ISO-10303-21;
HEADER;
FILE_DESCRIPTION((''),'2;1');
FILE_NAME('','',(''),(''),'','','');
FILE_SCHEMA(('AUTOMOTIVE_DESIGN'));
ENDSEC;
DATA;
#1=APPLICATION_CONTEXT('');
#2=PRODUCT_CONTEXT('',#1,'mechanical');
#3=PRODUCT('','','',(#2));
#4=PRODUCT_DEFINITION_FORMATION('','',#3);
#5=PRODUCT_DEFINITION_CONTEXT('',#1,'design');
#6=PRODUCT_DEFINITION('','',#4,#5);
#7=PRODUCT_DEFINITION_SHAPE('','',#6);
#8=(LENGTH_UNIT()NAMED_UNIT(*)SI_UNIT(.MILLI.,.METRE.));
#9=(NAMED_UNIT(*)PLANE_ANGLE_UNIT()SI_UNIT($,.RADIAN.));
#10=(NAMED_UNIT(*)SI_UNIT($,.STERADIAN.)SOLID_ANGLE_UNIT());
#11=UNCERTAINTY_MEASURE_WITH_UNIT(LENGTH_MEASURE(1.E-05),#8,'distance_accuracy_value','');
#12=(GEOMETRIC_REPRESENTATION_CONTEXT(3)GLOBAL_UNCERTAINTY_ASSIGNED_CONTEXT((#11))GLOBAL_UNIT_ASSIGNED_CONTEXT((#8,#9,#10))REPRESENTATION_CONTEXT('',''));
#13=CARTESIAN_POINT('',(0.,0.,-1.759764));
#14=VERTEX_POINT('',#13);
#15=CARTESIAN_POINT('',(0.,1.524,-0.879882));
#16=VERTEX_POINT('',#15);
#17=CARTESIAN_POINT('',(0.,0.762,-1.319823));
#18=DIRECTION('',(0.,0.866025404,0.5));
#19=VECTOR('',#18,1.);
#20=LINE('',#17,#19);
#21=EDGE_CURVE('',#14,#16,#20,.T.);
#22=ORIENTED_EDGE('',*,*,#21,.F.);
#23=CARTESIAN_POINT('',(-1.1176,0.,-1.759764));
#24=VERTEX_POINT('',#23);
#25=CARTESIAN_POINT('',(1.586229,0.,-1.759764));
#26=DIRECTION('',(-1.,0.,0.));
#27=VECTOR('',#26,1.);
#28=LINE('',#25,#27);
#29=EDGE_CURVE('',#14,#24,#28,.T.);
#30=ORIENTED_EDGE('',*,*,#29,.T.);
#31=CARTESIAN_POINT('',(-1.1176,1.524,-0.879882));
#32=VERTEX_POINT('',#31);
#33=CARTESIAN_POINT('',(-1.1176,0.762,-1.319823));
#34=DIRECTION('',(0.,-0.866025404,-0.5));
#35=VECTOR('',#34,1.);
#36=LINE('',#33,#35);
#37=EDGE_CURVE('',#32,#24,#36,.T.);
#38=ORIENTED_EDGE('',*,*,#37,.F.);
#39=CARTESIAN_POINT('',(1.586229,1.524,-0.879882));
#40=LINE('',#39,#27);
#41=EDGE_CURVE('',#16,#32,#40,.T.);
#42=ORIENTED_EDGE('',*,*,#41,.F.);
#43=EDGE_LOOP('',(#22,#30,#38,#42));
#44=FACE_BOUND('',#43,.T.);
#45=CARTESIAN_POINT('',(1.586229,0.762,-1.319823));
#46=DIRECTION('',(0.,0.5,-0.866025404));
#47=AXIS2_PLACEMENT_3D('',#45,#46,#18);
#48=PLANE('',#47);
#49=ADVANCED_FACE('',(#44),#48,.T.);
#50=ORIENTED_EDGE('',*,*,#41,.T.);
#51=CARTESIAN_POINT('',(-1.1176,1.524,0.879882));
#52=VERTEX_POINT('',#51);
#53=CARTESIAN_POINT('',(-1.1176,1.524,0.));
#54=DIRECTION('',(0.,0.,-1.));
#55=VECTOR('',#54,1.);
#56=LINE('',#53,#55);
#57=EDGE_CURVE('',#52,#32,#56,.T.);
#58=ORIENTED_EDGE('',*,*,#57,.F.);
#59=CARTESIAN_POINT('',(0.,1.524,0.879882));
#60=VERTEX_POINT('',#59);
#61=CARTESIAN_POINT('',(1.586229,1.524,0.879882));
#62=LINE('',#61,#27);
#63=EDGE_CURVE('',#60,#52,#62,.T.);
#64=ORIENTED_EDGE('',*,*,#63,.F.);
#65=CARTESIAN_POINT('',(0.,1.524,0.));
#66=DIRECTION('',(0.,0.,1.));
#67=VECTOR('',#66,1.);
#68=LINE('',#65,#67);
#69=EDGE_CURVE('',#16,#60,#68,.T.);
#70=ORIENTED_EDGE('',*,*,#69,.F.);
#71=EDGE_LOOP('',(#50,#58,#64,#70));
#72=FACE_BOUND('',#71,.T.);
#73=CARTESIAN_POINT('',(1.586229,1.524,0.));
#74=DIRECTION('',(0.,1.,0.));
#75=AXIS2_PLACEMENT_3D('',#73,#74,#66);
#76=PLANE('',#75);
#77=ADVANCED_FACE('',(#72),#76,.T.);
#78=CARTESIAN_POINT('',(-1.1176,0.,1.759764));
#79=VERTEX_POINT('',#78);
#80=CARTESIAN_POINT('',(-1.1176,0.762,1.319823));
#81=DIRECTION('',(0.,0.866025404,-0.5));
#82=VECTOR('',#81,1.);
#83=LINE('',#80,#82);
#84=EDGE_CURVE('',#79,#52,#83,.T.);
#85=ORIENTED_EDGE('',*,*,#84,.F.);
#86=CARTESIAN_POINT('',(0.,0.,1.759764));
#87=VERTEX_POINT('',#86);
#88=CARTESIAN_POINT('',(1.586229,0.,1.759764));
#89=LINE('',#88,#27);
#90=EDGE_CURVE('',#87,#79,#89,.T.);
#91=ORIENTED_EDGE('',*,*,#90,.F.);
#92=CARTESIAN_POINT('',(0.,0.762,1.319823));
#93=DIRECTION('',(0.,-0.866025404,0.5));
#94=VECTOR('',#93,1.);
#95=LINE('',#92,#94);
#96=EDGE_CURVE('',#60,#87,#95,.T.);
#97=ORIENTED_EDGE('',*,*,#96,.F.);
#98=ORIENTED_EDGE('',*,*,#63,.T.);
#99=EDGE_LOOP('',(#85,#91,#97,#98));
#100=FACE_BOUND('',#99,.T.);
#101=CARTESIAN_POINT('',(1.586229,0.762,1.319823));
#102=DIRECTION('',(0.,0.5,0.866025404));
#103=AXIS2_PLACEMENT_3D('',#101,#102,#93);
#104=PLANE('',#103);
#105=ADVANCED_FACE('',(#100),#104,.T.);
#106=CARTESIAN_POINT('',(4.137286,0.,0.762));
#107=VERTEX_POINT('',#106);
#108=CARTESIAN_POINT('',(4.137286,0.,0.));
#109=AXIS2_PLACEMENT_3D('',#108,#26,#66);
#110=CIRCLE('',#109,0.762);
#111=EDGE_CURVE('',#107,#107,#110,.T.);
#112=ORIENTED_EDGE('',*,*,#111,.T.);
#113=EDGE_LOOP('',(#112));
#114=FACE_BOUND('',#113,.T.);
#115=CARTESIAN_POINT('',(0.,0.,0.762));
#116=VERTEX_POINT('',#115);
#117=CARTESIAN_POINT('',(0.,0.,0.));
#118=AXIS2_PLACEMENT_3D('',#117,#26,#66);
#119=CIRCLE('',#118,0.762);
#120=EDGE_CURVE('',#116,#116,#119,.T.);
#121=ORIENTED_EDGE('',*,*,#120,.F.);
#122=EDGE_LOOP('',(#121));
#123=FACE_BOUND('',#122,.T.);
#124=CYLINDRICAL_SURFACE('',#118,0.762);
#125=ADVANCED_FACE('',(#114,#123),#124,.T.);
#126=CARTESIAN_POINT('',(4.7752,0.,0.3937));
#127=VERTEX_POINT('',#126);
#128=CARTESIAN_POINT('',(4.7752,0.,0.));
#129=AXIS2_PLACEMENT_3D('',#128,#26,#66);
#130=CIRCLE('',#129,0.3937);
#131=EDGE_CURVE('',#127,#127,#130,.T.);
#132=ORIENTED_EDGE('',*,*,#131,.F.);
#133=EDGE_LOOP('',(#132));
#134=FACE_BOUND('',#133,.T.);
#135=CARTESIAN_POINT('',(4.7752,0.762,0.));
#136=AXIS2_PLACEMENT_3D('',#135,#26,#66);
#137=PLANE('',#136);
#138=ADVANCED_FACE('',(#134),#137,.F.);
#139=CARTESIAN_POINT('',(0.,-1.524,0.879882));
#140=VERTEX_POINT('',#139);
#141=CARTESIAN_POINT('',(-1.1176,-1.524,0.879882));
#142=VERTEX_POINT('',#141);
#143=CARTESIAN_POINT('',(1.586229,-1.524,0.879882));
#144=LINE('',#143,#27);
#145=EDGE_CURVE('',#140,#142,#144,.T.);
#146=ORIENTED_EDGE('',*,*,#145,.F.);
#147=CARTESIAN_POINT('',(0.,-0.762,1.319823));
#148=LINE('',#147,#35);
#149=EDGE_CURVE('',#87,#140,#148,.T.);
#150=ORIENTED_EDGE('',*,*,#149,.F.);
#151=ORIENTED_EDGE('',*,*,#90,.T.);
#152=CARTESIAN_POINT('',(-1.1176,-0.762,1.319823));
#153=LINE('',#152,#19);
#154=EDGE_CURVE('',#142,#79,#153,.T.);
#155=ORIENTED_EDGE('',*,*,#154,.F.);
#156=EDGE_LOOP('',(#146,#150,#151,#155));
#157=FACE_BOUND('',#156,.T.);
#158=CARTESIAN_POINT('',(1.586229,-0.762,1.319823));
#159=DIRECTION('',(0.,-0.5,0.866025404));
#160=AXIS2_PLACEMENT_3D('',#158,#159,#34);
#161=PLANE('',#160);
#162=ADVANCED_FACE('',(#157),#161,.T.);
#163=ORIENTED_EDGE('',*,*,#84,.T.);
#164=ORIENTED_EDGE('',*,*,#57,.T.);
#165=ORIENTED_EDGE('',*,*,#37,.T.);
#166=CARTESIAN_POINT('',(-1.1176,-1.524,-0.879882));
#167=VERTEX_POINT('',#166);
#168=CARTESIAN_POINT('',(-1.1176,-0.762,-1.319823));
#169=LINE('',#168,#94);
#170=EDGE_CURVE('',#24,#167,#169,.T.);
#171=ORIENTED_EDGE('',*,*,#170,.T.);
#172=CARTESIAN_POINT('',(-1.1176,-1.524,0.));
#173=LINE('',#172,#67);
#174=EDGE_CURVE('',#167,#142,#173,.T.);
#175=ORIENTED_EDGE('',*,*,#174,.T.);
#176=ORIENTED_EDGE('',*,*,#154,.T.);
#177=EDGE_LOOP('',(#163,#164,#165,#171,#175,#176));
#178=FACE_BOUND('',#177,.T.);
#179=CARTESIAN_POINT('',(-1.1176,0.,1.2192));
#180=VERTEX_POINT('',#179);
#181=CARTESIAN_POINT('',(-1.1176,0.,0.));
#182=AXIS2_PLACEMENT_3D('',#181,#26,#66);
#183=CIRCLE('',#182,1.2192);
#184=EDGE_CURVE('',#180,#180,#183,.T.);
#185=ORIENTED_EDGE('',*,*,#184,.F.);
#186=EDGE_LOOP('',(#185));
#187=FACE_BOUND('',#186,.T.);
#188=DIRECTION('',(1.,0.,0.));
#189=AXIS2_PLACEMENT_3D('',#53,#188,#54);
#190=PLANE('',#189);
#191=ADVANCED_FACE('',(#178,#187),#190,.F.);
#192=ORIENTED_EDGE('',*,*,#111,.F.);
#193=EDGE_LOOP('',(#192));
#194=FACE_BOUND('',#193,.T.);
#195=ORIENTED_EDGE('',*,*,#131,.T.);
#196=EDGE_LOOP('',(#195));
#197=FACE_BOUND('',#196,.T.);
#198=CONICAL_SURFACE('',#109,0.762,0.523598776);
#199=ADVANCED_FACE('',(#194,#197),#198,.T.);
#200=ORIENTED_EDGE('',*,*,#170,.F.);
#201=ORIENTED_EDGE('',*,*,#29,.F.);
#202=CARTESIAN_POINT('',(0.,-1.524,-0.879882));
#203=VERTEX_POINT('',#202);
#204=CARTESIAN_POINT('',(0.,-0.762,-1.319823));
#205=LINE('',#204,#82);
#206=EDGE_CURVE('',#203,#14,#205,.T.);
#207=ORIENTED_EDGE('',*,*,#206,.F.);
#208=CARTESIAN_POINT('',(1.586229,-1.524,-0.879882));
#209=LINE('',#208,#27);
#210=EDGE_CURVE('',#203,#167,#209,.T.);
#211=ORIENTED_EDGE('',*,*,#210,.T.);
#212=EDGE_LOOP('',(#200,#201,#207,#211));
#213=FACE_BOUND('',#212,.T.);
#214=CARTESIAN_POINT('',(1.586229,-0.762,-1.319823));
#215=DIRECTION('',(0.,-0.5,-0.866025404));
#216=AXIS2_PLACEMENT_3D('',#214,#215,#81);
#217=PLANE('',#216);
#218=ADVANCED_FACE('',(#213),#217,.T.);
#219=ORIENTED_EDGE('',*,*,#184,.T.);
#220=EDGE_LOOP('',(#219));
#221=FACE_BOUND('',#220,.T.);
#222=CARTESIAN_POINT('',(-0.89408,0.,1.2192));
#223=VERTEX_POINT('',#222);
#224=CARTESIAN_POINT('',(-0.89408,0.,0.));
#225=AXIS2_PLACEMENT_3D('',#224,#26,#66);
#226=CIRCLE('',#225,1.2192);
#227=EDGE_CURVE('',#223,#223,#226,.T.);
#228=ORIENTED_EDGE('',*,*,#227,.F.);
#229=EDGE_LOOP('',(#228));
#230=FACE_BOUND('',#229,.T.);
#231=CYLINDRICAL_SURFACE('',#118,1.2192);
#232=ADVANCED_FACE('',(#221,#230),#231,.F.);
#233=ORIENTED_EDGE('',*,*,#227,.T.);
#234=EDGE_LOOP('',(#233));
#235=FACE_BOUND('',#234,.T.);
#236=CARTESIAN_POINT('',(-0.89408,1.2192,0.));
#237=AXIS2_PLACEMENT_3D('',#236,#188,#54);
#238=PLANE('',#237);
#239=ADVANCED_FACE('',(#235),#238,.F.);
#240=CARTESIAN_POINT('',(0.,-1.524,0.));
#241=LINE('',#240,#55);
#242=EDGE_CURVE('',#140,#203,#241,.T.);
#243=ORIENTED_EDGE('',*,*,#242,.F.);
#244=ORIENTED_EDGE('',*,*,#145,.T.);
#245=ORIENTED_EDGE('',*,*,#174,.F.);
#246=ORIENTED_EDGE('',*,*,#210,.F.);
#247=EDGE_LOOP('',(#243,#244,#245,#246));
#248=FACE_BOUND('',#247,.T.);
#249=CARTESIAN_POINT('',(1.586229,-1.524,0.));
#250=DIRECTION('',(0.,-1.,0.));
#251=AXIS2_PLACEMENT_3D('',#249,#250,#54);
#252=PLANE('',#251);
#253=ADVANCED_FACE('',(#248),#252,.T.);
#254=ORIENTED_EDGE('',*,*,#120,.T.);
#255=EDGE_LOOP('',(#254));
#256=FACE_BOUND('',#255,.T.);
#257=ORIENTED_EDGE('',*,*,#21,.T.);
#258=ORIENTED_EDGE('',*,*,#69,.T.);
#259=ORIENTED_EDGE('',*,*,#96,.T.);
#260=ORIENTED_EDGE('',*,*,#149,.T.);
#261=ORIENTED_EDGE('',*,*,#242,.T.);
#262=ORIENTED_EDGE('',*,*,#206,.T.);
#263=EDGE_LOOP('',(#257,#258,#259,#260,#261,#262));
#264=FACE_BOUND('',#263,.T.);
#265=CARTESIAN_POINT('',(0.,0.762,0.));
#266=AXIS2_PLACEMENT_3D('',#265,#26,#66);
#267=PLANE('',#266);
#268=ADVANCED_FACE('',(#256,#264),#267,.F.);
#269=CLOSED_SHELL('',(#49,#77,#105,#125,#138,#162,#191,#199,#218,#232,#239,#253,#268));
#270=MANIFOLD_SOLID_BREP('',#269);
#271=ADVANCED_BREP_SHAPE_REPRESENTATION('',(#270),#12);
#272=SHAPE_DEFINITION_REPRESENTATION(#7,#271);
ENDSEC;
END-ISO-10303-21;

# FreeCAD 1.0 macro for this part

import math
import FreeCAD as App
import Part
import Sketcher
from FreeCAD import Vector
Q = App.Units.Quantity

doc = App.newDocument("Part")
body = doc.addObject("PartDesign::Body", "Body")

sketch1 = body.newObject("Sketcher::SketchObject", "Sketch")
sketch1.AttachmentSupport = (doc.getObject("XY_Plane"), [""])
sketch1.MapMode = "FlatFace"
sketch1.addGeometry([
    Part.LineSegment(Vector(0, 0.76, 0), Vector(0, 1.52, 0)),
    Part.LineSegment(Vector(0, 1.52, 0), Vector(-1.12, 1.52, 0)),
    Part.LineSegment(Vector(-1.12, 1.52, 0), Vector(-1.12, 1.22, 0)),
    Part.LineSegment(Vector(-1.12, 1.22, 0), Vector(-0.89, 1.22, 0)),
    Part.LineSegment(Vector(-0.89, 1.22, 0), Vector(-0.89, 0, 0)),
    Part.LineSegment(Vector(-0.89, 0, 0), Vector(4.78, 0, 0)),
    Part.LineSegment(Vector(4.78, 0, 0), Vector(4.78, 0.76, 0)),
    Part.LineSegment(Vector(4.78, 0.76, 0), Vector(0, 0.76, 0)),
], False)
sketch1.addConstraint([
    Sketcher.Constraint("Coincident", 0, 2, 1, 1),
    Sketcher.Constraint("Coincident", 1, 2, 2, 1),
    Sketcher.Constraint("Coincident", 2, 2, 3, 1),
    Sketcher.Constraint("Coincident", 3, 2, 4, 1),
    Sketcher.Constraint("Coincident", 4, 2, 5, 1),
    Sketcher.Constraint("Coincident", 5, 2, 6, 1),
    Sketcher.Constraint("Coincident", 6, 2, 7, 1),
    Sketcher.Constraint("Coincident", 7, 2, 0, 1),
    Sketcher.Constraint("Vertical", 0),
    Sketcher.Constraint("Horizontal", 1),
    Sketcher.Constraint("Vertical", 2),
    Sketcher.Constraint("Horizontal", 3),
    Sketcher.Constraint("Vertical", 4),
    Sketcher.Constraint("Horizontal", 5),
    Sketcher.Constraint("Vertical", 6),
    Sketcher.Constraint("Horizontal", 7),
    Sketcher.Constraint("PointOnObject", 0, 2, -2),
    Sketcher.Constraint("PointOnObject", 4, 2, -1),
    Sketcher.Constraint("Equal", 0, 6),
    Sketcher.Constraint("DistanceY", 0, 1, 0, 2, Q("0.03 in")),
    Sketcher.Constraint("DistanceX", 1, 2, 1, 1, Q("0.044 in")),
    Sketcher.Constraint("DistanceX", 7, 2, 7, 1, Q("0.188 in")),
    Sketcher.Constraint("DistanceY", 2, 2, 2, 1, Q("0.012 in")),
    Sketcher.Constraint("DistanceX", 3, 1, 3, 2, Q("0.0088 in")),
])
revolution = body.newObject("PartDesign::Revolution", "Revolution")
revolution.Profile = sketch1
revolution.ReferenceAxis = (sketch1, ["H_Axis"])
revolution.Angle = 360

sketch2 = body.newObject("Sketcher::SketchObject", "Sketch001")
sketch2.AttachmentSupport = (doc.getObject("YZ_Plane"), [""])
sketch2.MapMode = "FlatFace"
sketch2.AttachmentOffset = App.Placement(Vector(0, 0, -0.044 * 25.4), App.Rotation())
sketch2.addGeometry([
    Part.ArcOfCircle(Part.Circle(Vector(0, 0, 0), Vector(0, 0, 1), 1.5), math.radians(-120), math.radians(-60)),
    Part.LineSegment(Vector(0.8, -1.3, 0), Vector(0, -1.8, 0)),
    Part.LineSegment(Vector(0, -1.8, 0), Vector(-0.8, -1.3, 0)),
    Part.ArcOfCircle(Part.Circle(Vector(0, 0, 0), Vector(0, 0, 1), 1.5), math.radians(-60), math.radians(0)),
    Part.LineSegment(Vector(1.5, 0, 0), Vector(1.5, -0.9, 0)),
    Part.LineSegment(Vector(1.5, -0.9, 0), Vector(0.8, -1.3, 0)),
    Part.ArcOfCircle(Part.Circle(Vector(0, 0, 0), Vector(0, 0, 1), 1.5), math.radians(0), math.radians(60)),
    Part.LineSegment(Vector(0.8, 1.3, 0), Vector(1.5, 0.9, 0)),
    Part.LineSegment(Vector(1.5, 0.9, 0), Vector(1.5, 0, 0)),
    Part.LineSegment(Vector(-0.8, 1.3, 0), Vector(0, 1.8, 0)),
    Part.LineSegment(Vector(0, 1.8, 0), Vector(0.8, 1.3, 0)),
    Part.ArcOfCircle(Part.Circle(Vector(0, 0, 0), Vector(0, 0, 1), 1.5), math.radians(60), math.radians(90)),
    Part.ArcOfCircle(Part.Circle(Vector(0, 0, 0), Vector(0, 0, 1), 1.5), math.radians(90), math.radians(120)),
    Part.LineSegment(Vector(-1.5, 0.9, 0), Vector(-0.8, 1.3, 0)),
    Part.ArcOfCircle(Part.Circle(Vector(0, 0, 0), Vector(0, 0, 1), 1.5), math.radians(120), math.radians(180)),
    Part.LineSegment(Vector(-1.5, 0, 0), Vector(-1.5, 0.9, 0)),
    Part.LineSegment(Vector(-1.5, -0.9, 0), Vector(-1.5, 0, 0)),
    Part.ArcOfCircle(Part.Circle(Vector(0, 0, 0), Vector(0, 0, 1), 1.5), math.radians(-180), math.radians(-120)),
    Part.LineSegment(Vector(-0.8, -1.3, 0), Vector(-1.5, -0.9, 0)),
], False)
sketch2.addConstraint([
    Sketcher.Constraint("Tangent", 0, 2, 1, 1),
    Sketcher.Constraint("Coincident", 1, 2, 2, 1),
    Sketcher.Constraint("Tangent", 2, 2, 0, 1),
    Sketcher.Constraint("Tangent", 3, 2, 4, 1),
    Sketcher.Constraint("Coincident", 4, 2, 5, 1),
    Sketcher.Constraint("Tangent", 5, 2, 3, 1),
    Sketcher.Constraint("Tangent", 6, 2, 7, 1),
    Sketcher.Constraint("Coincident", 7, 2, 8, 1),
    Sketcher.Constraint("Tangent", 8, 2, 6, 1),
    Sketcher.Constraint("Coincident", 9, 2, 10, 1),
    Sketcher.Constraint("Tangent", 10, 2, 11, 1),
    Sketcher.Constraint("Tangent", 11, 2, 12, 1),
    Sketcher.Constraint("Tangent", 12, 2, 9, 1),
    Sketcher.Constraint("Tangent", 13, 2, 14, 1),
    Sketcher.Constraint("Tangent", 14, 2, 15, 1),
    Sketcher.Constraint("Coincident", 15, 2, 13, 1),
    Sketcher.Constraint("Tangent", 16, 2, 17, 1),
    Sketcher.Constraint("Tangent", 17, 2, 18, 1),
    Sketcher.Constraint("Coincident", 18, 2, 16, 1),
    Sketcher.Constraint("Vertical", 4),
    Sketcher.Constraint("Vertical", 8),
    Sketcher.Constraint("Vertical", 15),
    Sketcher.Constraint("Vertical", 16),
    Sketcher.Constraint("Coincident", 0, 3, -1, 1),
    Sketcher.Constraint("Coincident", 3, 3, -1, 1),
    Sketcher.Constraint("Coincident", 6, 3, -1, 1),
    Sketcher.Constraint("Coincident", 11, 3, -1, 1),
    Sketcher.Constraint("Coincident", 14, 3, -1, 1),
    Sketcher.Constraint("Coincident", 17, 3, -1, 1),
    Sketcher.Constraint("Coincident", 5, 2, 0, 2),
    Sketcher.Constraint("Coincident", 10, 2, 6, 2),
    Sketcher.Constraint("Coincident", 13, 2, 12, 2),
    Sketcher.Constraint("Coincident", 17, 2, 2, 2),
    Sketcher.Constraint("Equal", 3, 6),
    Sketcher.Constraint("Equal", 11, 12),
    Sketcher.Constraint("Symmetric", 1, 2, 9, 2, -1, 1),
    Sketcher.Constraint("PointOnObject", 1, 2, -2),
    Sketcher.Constraint("PointOnObject", 11, 2, -2),
    Sketcher.Constraint("Equal", 2, 5),
    Sketcher.Constraint("Radius", 0, Q("0.06 in")),
])
pad1 = body.newObject("PartDesign::Pad", "Pad")
pad1.Profile = sketch2
pad1.Length = Q("0.044 in")

sketch3 = body.newObject("Sketcher::SketchObject", "Sketch002")
sketch3.AttachmentSupport = (doc.getObject("XY_Plane"), [""])
sketch3.MapMode = "FlatFace"
sketch3.addGeometry([
    Part.LineSegment(Vector(4.78, 0, 0), Vector(5.28, 0, 0)),
    Part.LineSegment(Vector(5.28, 0, 0), Vector(5.28, 1.27, 0)),
    Part.LineSegment(Vector(5.28, 1.27, 0), Vector(4.14, 1.27, 0)),
    Part.LineSegment(Vector(4.14, 1.27, 0), Vector(4.14, 0.76, 0)),
    Part.LineSegment(Vector(4.14, 0.76, 0), Vector(4.78, 0.39, 0)),
    Part.LineSegment(Vector(4.78, 0.39, 0), Vector(4.78, 0, 0)),
], False)
sketch3.addConstraint([
    Sketcher.Constraint("Coincident", 0, 2, 1, 1),
    Sketcher.Constraint("Coincident", 1, 2, 2, 1),
    Sketcher.Constraint("Coincident", 2, 2, 3, 1),
    Sketcher.Constraint("Coincident", 3, 2, 4, 1),
    Sketcher.Constraint("Coincident", 4, 2, 5, 1),
    Sketcher.Constraint("Coincident", 5, 2, 0, 1),
    Sketcher.Constraint("Horizontal", 0),
    Sketcher.Constraint("Vertical", 1),
    Sketcher.Constraint("Horizontal", 2),
    Sketcher.Constraint("Vertical", 3),
    Sketcher.Constraint("Vertical", 5),
    Sketcher.Constraint("PointOnObject", 0, 2, -1),
    Sketcher.Constraint("Equal", 0, 3),
    Sketcher.Constraint("Angle", 4, Q("-30 deg")),
    Sketcher.Constraint("DistanceX", 0, 1, 0, 2, Q("0.02 in")),
    Sketcher.Constraint("DistanceY", 1, 1, 1, 2, Q("0.05 in")),
    Sketcher.Constraint("Distance", 4, Q("0.029 in")),
    Sketcher.Constraint("DistanceX", -1, 1, 0, 2, Q("0.208 in")),
])
groove = body.newObject("PartDesign::Groove", "Groove")
groove.Profile = sketch3
groove.ReferenceAxis = (sketch3, ["H_Axis"])
groove.Angle = 360

doc.recompute()
